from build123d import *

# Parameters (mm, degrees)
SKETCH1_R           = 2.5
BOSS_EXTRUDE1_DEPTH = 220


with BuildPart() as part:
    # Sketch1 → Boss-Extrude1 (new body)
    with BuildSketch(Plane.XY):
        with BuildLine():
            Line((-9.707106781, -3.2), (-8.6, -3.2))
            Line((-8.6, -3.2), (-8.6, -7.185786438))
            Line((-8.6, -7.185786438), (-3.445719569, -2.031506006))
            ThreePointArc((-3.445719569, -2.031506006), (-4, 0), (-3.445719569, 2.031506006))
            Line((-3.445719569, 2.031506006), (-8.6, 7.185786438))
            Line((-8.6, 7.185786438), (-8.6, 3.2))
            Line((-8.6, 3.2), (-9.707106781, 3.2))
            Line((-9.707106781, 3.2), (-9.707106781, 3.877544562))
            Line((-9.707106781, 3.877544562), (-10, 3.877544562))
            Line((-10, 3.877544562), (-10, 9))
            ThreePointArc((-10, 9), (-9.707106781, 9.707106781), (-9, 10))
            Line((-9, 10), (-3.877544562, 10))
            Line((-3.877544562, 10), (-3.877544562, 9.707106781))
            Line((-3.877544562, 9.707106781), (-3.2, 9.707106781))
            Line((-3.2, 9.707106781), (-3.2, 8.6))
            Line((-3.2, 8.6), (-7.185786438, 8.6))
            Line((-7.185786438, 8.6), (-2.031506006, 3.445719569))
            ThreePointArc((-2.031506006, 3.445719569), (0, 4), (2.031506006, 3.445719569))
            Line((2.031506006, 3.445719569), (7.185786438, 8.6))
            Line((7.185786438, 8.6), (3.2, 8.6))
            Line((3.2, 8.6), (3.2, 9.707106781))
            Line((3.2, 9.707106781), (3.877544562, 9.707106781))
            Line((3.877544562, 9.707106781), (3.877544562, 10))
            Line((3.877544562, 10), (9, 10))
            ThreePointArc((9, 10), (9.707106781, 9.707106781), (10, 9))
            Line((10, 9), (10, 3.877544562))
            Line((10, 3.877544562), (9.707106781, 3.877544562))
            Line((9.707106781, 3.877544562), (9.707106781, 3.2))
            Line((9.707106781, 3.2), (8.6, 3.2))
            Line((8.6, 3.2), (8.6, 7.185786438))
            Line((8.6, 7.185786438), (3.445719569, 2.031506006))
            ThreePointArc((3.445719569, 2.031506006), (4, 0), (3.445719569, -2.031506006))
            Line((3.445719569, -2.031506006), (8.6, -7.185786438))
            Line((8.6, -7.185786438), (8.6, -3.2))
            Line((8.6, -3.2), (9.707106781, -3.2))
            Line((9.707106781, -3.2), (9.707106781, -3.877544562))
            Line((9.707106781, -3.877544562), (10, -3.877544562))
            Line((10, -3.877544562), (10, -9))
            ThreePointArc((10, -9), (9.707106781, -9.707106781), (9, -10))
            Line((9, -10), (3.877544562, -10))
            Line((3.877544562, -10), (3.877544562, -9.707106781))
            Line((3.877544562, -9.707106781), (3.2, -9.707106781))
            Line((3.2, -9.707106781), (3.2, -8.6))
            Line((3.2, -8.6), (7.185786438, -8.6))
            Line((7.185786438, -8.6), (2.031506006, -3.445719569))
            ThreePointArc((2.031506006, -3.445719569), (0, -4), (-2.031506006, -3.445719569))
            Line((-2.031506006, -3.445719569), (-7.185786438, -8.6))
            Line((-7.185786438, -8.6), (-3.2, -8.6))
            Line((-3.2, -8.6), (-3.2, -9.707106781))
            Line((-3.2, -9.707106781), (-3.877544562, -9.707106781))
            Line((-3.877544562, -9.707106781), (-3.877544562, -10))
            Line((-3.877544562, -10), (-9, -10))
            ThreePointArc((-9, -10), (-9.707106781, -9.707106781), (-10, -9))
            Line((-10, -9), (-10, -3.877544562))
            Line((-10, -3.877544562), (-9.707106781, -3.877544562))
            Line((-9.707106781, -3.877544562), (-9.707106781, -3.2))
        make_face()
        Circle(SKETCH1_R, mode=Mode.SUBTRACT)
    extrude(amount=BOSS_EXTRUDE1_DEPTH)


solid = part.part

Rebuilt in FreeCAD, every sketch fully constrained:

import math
import FreeCAD as App
import Part
import Sketcher
Q = App.Units.Quantity

doc = App.newDocument("Part")
body = doc.addObject("PartDesign::Body", "Body")

# Sketch on XY plane
sketch1 = body.newObject("Sketcher::SketchObject", "Sketch")
sketch1.AttachmentSupport = (doc.getObject("XY_Plane"), [""])
sketch1.MapMode = "FlatFace"
sketch1.addGeometry(Part.LineSegment(App.Vector(-8.6, -3.2, 0), App.Vector(-9.707107, -3.2, 0)), False)
sketch1.addGeometry(Part.LineSegment(App.Vector(-9.707107, -3.2, 0), App.Vector(-9.707107, -3.877545, 0)), False)
sketch1.addGeometry(Part.LineSegment(App.Vector(-9.707107, -3.877545, 0), App.Vector(-10, -3.877545, 0)), False)
sketch1.addGeometry(Part.LineSegment(App.Vector(-10, -3.877545, 0), App.Vector(-10, -9, 0)), False)
sketch1.addGeometry(Part.ArcOfCircle(Part.Circle(App.Vector(-9, -9, 0), App.Vector(0, 0, 1), 1), math.radians(-180), math.radians(-90)), False)
sketch1.addGeometry(Part.LineSegment(App.Vector(-9, -10, 0), App.Vector(-3.877545, -10, 0)), False)
sketch1.addGeometry(Part.LineSegment(App.Vector(-3.877545, -10, 0), App.Vector(-3.877545, -9.707107, 0)), False)
sketch1.addGeometry(Part.LineSegment(App.Vector(-3.877545, -9.707107, 0), App.Vector(-3.2, -9.707107, 0)), False)
sketch1.addGeometry(Part.LineSegment(App.Vector(-3.2, -9.707107, 0), App.Vector(-3.2, -8.6, 0)), False)
sketch1.addGeometry(Part.LineSegment(App.Vector(-3.2, -8.6, 0), App.Vector(-7.185786, -8.6, 0)), False)
sketch1.addGeometry(Part.LineSegment(App.Vector(-7.185786, -8.6, 0), App.Vector(-2.031506, -3.44572, 0)), False)
sketch1.addGeometry(Part.ArcOfCircle(Part.Circle(App.Vector(0, 0, 0), App.Vector(0, 0, 1), 4), math.radians(-120.522488), math.radians(-59.477512)), False)
sketch1.addGeometry(Part.LineSegment(App.Vector(2.031506, -3.44572, 0), App.Vector(7.185786, -8.6, 0)), False)
sketch1.addGeometry(Part.LineSegment(App.Vector(7.185786, -8.6, 0), App.Vector(3.2, -8.6, 0)), False)
sketch1.addGeometry(Part.LineSegment(App.Vector(3.2, -8.6, 0), App.Vector(3.2, -9.707107, 0)), False)
sketch1.addGeometry(Part.LineSegment(App.Vector(3.2, -9.707107, 0), App.Vector(3.877545, -9.707107, 0)), False)
sketch1.addGeometry(Part.LineSegment(App.Vector(3.877545, -9.707107, 0), App.Vector(3.877545, -10, 0)), False)
sketch1.addGeometry(Part.LineSegment(App.Vector(3.877545, -10, 0), App.Vector(9, -10, 0)), False)
sketch1.addGeometry(Part.ArcOfCircle(Part.Circle(App.Vector(9, -9, 0), App.Vector(0, 0, 1), 1), math.radians(-90), math.radians(0)), False)
sketch1.addGeometry(Part.LineSegment(App.Vector(10, -9, 0), App.Vector(10, -3.877545, 0)), False)
sketch1.addGeometry(Part.LineSegment(App.Vector(10, -3.877545, 0), App.Vector(9.707107, -3.877545, 0)), False)
sketch1.addGeometry(Part.LineSegment(App.Vector(9.707107, -3.877545, 0), App.Vector(9.707107, -3.2, 0)), False)
sketch1.addGeometry(Part.LineSegment(App.Vector(9.707107, -3.2, 0), App.Vector(8.6, -3.2, 0)), False)
sketch1.addGeometry(Part.LineSegment(App.Vector(8.6, -3.2, 0), App.Vector(8.6, -7.185786, 0)), False)
sketch1.addGeometry(Part.LineSegment(App.Vector(8.6, -7.185786, 0), App.Vector(3.44572, -2.031506, 0)), False)
sketch1.addGeometry(Part.ArcOfCircle(Part.Circle(App.Vector(0, 0, 0), App.Vector(0, 0, 1), 4), math.radians(-30.522488), math.radians(30.522488)), False)
sketch1.addGeometry(Part.LineSegment(App.Vector(3.44572, 2.031506, 0), App.Vector(8.6, 7.185786, 0)), False)
sketch1.addGeometry(Part.LineSegment(App.Vector(8.6, 7.185786, 0), App.Vector(8.6, 3.2, 0)), False)
sketch1.addGeometry(Part.LineSegment(App.Vector(8.6, 3.2, 0), App.Vector(9.707107, 3.2, 0)), False)
sketch1.addGeometry(Part.LineSegment(App.Vector(9.707107, 3.2, 0), App.Vector(9.707107, 3.877545, 0)), False)
sketch1.addGeometry(Part.LineSegment(App.Vector(9.707107, 3.877545, 0), App.Vector(10, 3.877545, 0)), False)
sketch1.addGeometry(Part.LineSegment(App.Vector(10, 3.877545, 0), App.Vector(10, 9, 0)), False)
sketch1.addGeometry(Part.ArcOfCircle(Part.Circle(App.Vector(9, 9, 0), App.Vector(0, 0, 1), 1), math.radians(0), math.radians(90)), False)
sketch1.addGeometry(Part.LineSegment(App.Vector(9, 10, 0), App.Vector(3.877545, 10, 0)), False)
sketch1.addGeometry(Part.LineSegment(App.Vector(3.877545, 10, 0), App.Vector(3.877545, 9.707107, 0)), False)
sketch1.addGeometry(Part.LineSegment(App.Vector(3.877545, 9.707107, 0), App.Vector(3.2, 9.707107, 0)), False)
sketch1.addGeometry(Part.LineSegment(App.Vector(3.2, 9.707107, 0), App.Vector(3.2, 8.6, 0)), False)
sketch1.addGeometry(Part.LineSegment(App.Vector(3.2, 8.6, 0), App.Vector(7.185786, 8.6, 0)), False)
sketch1.addGeometry(Part.LineSegment(App.Vector(7.185786, 8.6, 0), App.Vector(2.031506, 3.44572, 0)), False)
sketch1.addGeometry(Part.ArcOfCircle(Part.Circle(App.Vector(0, 0, 0), App.Vector(0, 0, 1), 4), math.radians(59.477512), math.radians(120.522488)), False)
sketch1.addGeometry(Part.LineSegment(App.Vector(-2.031506, 3.44572, 0), App.Vector(-7.185786, 8.6, 0)), False)
sketch1.addGeometry(Part.LineSegment(App.Vector(-7.185786, 8.6, 0), App.Vector(-3.2, 8.6, 0)), False)
sketch1.addGeometry(Part.LineSegment(App.Vector(-3.2, 8.6, 0), App.Vector(-3.2, 9.707107, 0)), False)
sketch1.addGeometry(Part.LineSegment(App.Vector(-3.2, 9.707107, 0), App.Vector(-3.877545, 9.707107, 0)), False)
sketch1.addGeometry(Part.LineSegment(App.Vector(-3.877545, 9.707107, 0), App.Vector(-3.877545, 10, 0)), False)
sketch1.addGeometry(Part.LineSegment(App.Vector(-3.877545, 10, 0), App.Vector(-9, 10, 0)), False)
sketch1.addGeometry(Part.ArcOfCircle(Part.Circle(App.Vector(-9, 9, 0), App.Vector(0, 0, 1), 1), math.radians(90), math.radians(180)), False)
sketch1.addGeometry(Part.LineSegment(App.Vector(-10, 9, 0), App.Vector(-10, 3.877545, 0)), False)
sketch1.addGeometry(Part.LineSegment(App.Vector(-10, 3.877545, 0), App.Vector(-9.707107, 3.877545, 0)), False)
sketch1.addGeometry(Part.LineSegment(App.Vector(-9.707107, 3.877545, 0), App.Vector(-9.707107, 3.2, 0)), False)
sketch1.addGeometry(Part.LineSegment(App.Vector(-9.707107, 3.2, 0), App.Vector(-8.6, 3.2, 0)), False)
sketch1.addGeometry(Part.LineSegment(App.Vector(-8.6, 3.2, 0), App.Vector(-8.6, 7.185786, 0)), False)
sketch1.addGeometry(Part.LineSegment(App.Vector(-8.6, 7.185786, 0), App.Vector(-3.44572, 2.031506, 0)), False)
sketch1.addGeometry(Part.ArcOfCircle(Part.Circle(App.Vector(0, 0, 0), App.Vector(0, 0, 1), 4), math.radians(149.477512), math.radians(210.522488)), False)
sketch1.addGeometry(Part.LineSegment(App.Vector(-3.44572, -2.031506, 0), App.Vector(-8.6, -7.185786, 0)), False)
sketch1.addGeometry(Part.LineSegment(App.Vector(-8.6, -7.185786, 0), App.Vector(-8.6, -3.2, 0)), False)
sketch1.addGeometry(Part.Circle(App.Vector(0, 0, 0), App.Vector(0, 0, 1), 2.5), False)
sketch1.addConstraint(Sketcher.Constraint("Coincident", 0, 2, 1, 1))
sketch1.addConstraint(Sketcher.Constraint("Coincident", 1, 2, 2, 1))
sketch1.addConstraint(Sketcher.Constraint("Coincident", 2, 2, 3, 1))
sketch1.addConstraint(Sketcher.Constraint("Tangent", 3, 2, 4, 1))
sketch1.addConstraint(Sketcher.Constraint("Tangent", 4, 2, 5, 1))
sketch1.addConstraint(Sketcher.Constraint("Coincident", 5, 2, 6, 1))
sketch1.addConstraint(Sketcher.Constraint("Coincident", 6, 2, 7, 1))
sketch1.addConstraint(Sketcher.Constraint("Coincident", 7, 2, 8, 1))
sketch1.addConstraint(Sketcher.Constraint("Coincident", 8, 2, 9, 1))
sketch1.addConstraint(Sketcher.Constraint("Coincident", 9, 2, 10, 1))
sketch1.addConstraint(Sketcher.Constraint("Coincident", 10, 2, 11, 1))
sketch1.addConstraint(Sketcher.Constraint("Coincident", 11, 2, 12, 1))
sketch1.addConstraint(Sketcher.Constraint("Coincident", 12, 2, 13, 1))
sketch1.addConstraint(Sketcher.Constraint("Coincident", 13, 2, 14, 1))
sketch1.addConstraint(Sketcher.Constraint("Coincident", 14, 2, 15, 1))
sketch1.addConstraint(Sketcher.Constraint("Coincident", 15, 2, 16, 1))
sketch1.addConstraint(Sketcher.Constraint("Coincident", 16, 2, 17, 1))
sketch1.addConstraint(Sketcher.Constraint("Tangent", 17, 2, 18, 1))
sketch1.addConstraint(Sketcher.Constraint("Tangent", 18, 2, 19, 1))
sketch1.addConstraint(Sketcher.Constraint("Coincident", 19, 2, 20, 1))
sketch1.addConstraint(Sketcher.Constraint("Coincident", 20, 2, 21, 1))
sketch1.addConstraint(Sketcher.Constraint("Coincident", 21, 2, 22, 1))
sketch1.addConstraint(Sketcher.Constraint("Coincident", 22, 2, 23, 1))
sketch1.addConstraint(Sketcher.Constraint("Coincident", 23, 2, 24, 1))
sketch1.addConstraint(Sketcher.Constraint("Coincident", 24, 2, 25, 1))
sketch1.addConstraint(Sketcher.Constraint("Coincident", 25, 2, 26, 1))
sketch1.addConstraint(Sketcher.Constraint("Coincident", 26, 2, 27, 1))
sketch1.addConstraint(Sketcher.Constraint("Coincident", 27, 2, 28, 1))
sketch1.addConstraint(Sketcher.Constraint("Coincident", 28, 2, 29, 1))
sketch1.addConstraint(Sketcher.Constraint("Coincident", 29, 2, 30, 1))
sketch1.addConstraint(Sketcher.Constraint("Coincident", 30, 2, 31, 1))
sketch1.addConstraint(Sketcher.Constraint("Tangent", 31, 2, 32, 1))
sketch1.addConstraint(Sketcher.Constraint("Tangent", 32, 2, 33, 1))
sketch1.addConstraint(Sketcher.Constraint("Coincident", 33, 2, 34, 1))
sketch1.addConstraint(Sketcher.Constraint("Coincident", 34, 2, 35, 1))
sketch1.addConstraint(Sketcher.Constraint("Coincident", 35, 2, 36, 1))
sketch1.addConstraint(Sketcher.Constraint("Coincident", 36, 2, 37, 1))
sketch1.addConstraint(Sketcher.Constraint("Coincident", 37, 2, 38, 1))
sketch1.addConstraint(Sketcher.Constraint("Coincident", 38, 2, 39, 1))
sketch1.addConstraint(Sketcher.Constraint("Coincident", 39, 2, 40, 1))
sketch1.addConstraint(Sketcher.Constraint("Coincident", 40, 2, 41, 1))
sketch1.addConstraint(Sketcher.Constraint("Coincident", 41, 2, 42, 1))
sketch1.addConstraint(Sketcher.Constraint("Coincident", 42, 2, 43, 1))
sketch1.addConstraint(Sketcher.Constraint("Coincident", 43, 2, 44, 1))
sketch1.addConstraint(Sketcher.Constraint("Coincident", 44, 2, 45, 1))
sketch1.addConstraint(Sketcher.Constraint("Tangent", 45, 2, 46, 1))
sketch1.addConstraint(Sketcher.Constraint("Tangent", 46, 2, 47, 1))
sketch1.addConstraint(Sketcher.Constraint("Coincident", 47, 2, 48, 1))
sketch1.addConstraint(Sketcher.Constraint("Coincident", 48, 2, 49, 1))
sketch1.addConstraint(Sketcher.Constraint("Coincident", 49, 2, 50, 1))
sketch1.addConstraint(Sketcher.Constraint("Coincident", 50, 2, 51, 1))
sketch1.addConstraint(Sketcher.Constraint("Coincident", 51, 2, 52, 1))
sketch1.addConstraint(Sketcher.Constraint("Coincident", 52, 2, 53, 1))
sketch1.addConstraint(Sketcher.Constraint("Coincident", 53, 2, 54, 1))
sketch1.addConstraint(Sketcher.Constraint("Coincident", 54, 2, 55, 1))
sketch1.addConstraint(Sketcher.Constraint("Coincident", 55, 2, 0, 1))
sketch1.addConstraint(Sketcher.Constraint("Horizontal", 0))
sketch1.addConstraint(Sketcher.Constraint("Vertical", 1))
sketch1.addConstraint(Sketcher.Constraint("Horizontal", 2))
sketch1.addConstraint(Sketcher.Constraint("Vertical", 3))
sketch1.addConstraint(Sketcher.Constraint("Horizontal", 5))
sketch1.addConstraint(Sketcher.Constraint("Vertical", 6))
sketch1.addConstraint(Sketcher.Constraint("Horizontal", 7))
sketch1.addConstraint(Sketcher.Constraint("Vertical", 8))
sketch1.addConstraint(Sketcher.Constraint("Horizontal", 9))
sketch1.addConstraint(Sketcher.Constraint("Horizontal", 13))
sketch1.addConstraint(Sketcher.Constraint("Vertical", 14))
sketch1.addConstraint(Sketcher.Constraint("Horizontal", 15))
sketch1.addConstraint(Sketcher.Constraint("Vertical", 16))
sketch1.addConstraint(Sketcher.Constraint("Horizontal", 17))
sketch1.addConstraint(Sketcher.Constraint("Vertical", 19))
sketch1.addConstraint(Sketcher.Constraint("Horizontal", 20))
sketch1.addConstraint(Sketcher.Constraint("Vertical", 21))
sketch1.addConstraint(Sketcher.Constraint("Horizontal", 22))
sketch1.addConstraint(Sketcher.Constraint("Vertical", 23))
sketch1.addConstraint(Sketcher.Constraint("Vertical", 27))
sketch1.addConstraint(Sketcher.Constraint("Horizontal", 28))
sketch1.addConstraint(Sketcher.Constraint("Vertical", 29))
sketch1.addConstraint(Sketcher.Constraint("Horizontal", 30))
sketch1.addConstraint(Sketcher.Constraint("Vertical", 31))
sketch1.addConstraint(Sketcher.Constraint("Horizontal", 33))
sketch1.addConstraint(Sketcher.Constraint("Vertical", 34))
sketch1.addConstraint(Sketcher.Constraint("Horizontal", 35))
sketch1.addConstraint(Sketcher.Constraint("Vertical", 36))
sketch1.addConstraint(Sketcher.Constraint("Horizontal", 37))
sketch1.addConstraint(Sketcher.Constraint("Horizontal", 41))
sketch1.addConstraint(Sketcher.Constraint("Vertical", 42))
sketch1.addConstraint(Sketcher.Constraint("Horizontal", 43))
sketch1.addConstraint(Sketcher.Constraint("Vertical", 44))
sketch1.addConstraint(Sketcher.Constraint("Horizontal", 45))
sketch1.addConstraint(Sketcher.Constraint("Vertical", 47))
sketch1.addConstraint(Sketcher.Constraint("Horizontal", 48))
sketch1.addConstraint(Sketcher.Constraint("Vertical", 49))
sketch1.addConstraint(Sketcher.Constraint("Horizontal", 50))
sketch1.addConstraint(Sketcher.Constraint("Vertical", 51))
sketch1.addConstraint(Sketcher.Constraint("Vertical", 55))
sketch1.addConstraint(Sketcher.Constraint("Coincident", 11, 3, -1, 1))
sketch1.addConstraint(Sketcher.Constraint("Coincident", 25, 3, -1, 1))
sketch1.addConstraint(Sketcher.Constraint("Coincident", 39, 3, -1, 1))
sketch1.addConstraint(Sketcher.Constraint("Coincident", 53, 3, -1, 1))
sketch1.addConstraint(Sketcher.Constraint("Coincident", 56, 3, -1, 1))
sketch1.addConstraint(Sketcher.Constraint("Equal", 4, 18))
sketch1.addConstraint(Sketcher.Constraint("Equal", 11, 25))
sketch1.addConstraint(Sketcher.Constraint("Equal", 18, 32))
sketch1.addConstraint(Sketcher.Constraint("Equal", 25, 39))
sketch1.addConstraint(Sketcher.Constraint("Equal", 32, 46))
sketch1.addConstraint(Sketcher.Constraint("Equal", 39, 53))
sketch1.addConstraint(Sketcher.Constraint("Symmetric", 4, 3, 32, 3, -1, 1))
sketch1.addConstraint(Sketcher.Constraint("Symmetric", 18, 3, 46, 3, -1, 1))
sketch1.addConstraint(Sketcher.Constraint("Symmetric", 0, 2, 28, 2, -1, 1))
sketch1.addConstraint(Sketcher.Constraint("Symmetric", 6, 2, 34, 2, -1, 1))
sketch1.addConstraint(Sketcher.Constraint("Symmetric", 8, 2, 36, 2, -1, 1))
sketch1.addConstraint(Sketcher.Constraint("Symmetric", 12, 2, 40, 2, -1, 1))
sketch1.addConstraint(Sketcher.Constraint("Symmetric", 14, 2, 42, 2, -1, 1))
sketch1.addConstraint(Sketcher.Constraint("Symmetric", 20, 2, 48, 2, -1, 1))
sketch1.addConstraint(Sketcher.Constraint("Symmetric", 22, 2, 50, 2, -1, 1))
sketch1.addConstraint(Sketcher.Constraint("Symmetric", 26, 2, 54, 2, -1, 1))
sketch1.addConstraint(Sketcher.Constraint("Symmetric", 4, 3, 18, 3, -2))
sketch1.addConstraint(Sketcher.Constraint("Symmetric", 9, 2, 12, 2, -2))
sketch1.addConstraint(Sketcher.Constraint("Symmetric", 7, 2, 14, 2, -2))
sketch1.addConstraint(Sketcher.Constraint("Symmetric", 1, 2, 20, 2, -2))
sketch1.addConstraint(Sketcher.Constraint("Symmetric", 27, 2, 50, 2, -2))
sketch1.addConstraint(Sketcher.Constraint("Perpendicular", 10, 12))
sketch1.addConstraint(Sketcher.Constraint("Parallel", 12, 24))
sketch1.addConstraint(Sketcher.Constraint("Perpendicular", 24, 26))
sketch1.addConstraint(Sketcher.Constraint("Parallel", 26, 38))
sketch1.addConstraint(Sketcher.Constraint("Perpendicular", 38, 40))
sketch1.addConstraint(Sketcher.Constraint("Parallel", 40, 52))
sketch1.addConstraint(Sketcher.Constraint("Perpendicular", 52, 54))
sketch1.addConstraint(Sketcher.Constraint("Horizontal", 10, 2, 11, 2))
sketch1.addConstraint(Sketcher.Constraint("Horizontal", 38, 2, 39, 2))
sketch1.addConstraint(Sketcher.Constraint("Horizontal", 30, 2, 47, 2))
sketch1.addConstraint(Sketcher.Constraint("Horizontal", 26, 2, 51, 2))
sketch1.addConstraint(Sketcher.Constraint("Horizontal", 24, 2, 53, 2))
sketch1.addConstraint(Sketcher.Constraint("Vertical", 16, 2, 33, 2))
sketch1.addConstraint(Sketcher.Constraint("Vertical", 6, 2, 43, 2))
sketch1.addConstraint(Sketcher.Constraint("Equal", 43, 1))
sketch1.addConstraint(Sketcher.Constraint("Equal", 45, 3))
sketch1.addConstraint(Sketcher.Constraint("Equal", 48, 6))
sketch1.addConstraint(Sketcher.Constraint("Equal", 50, 8))
sketch1.addConstraint(Sketcher.Constraint("Equal", 41, 23))
sketch1.addConstraint(Sketcher.Constraint("Equal", 12, 24))
sketch1.addConstraint(Sketcher.Constraint("Diameter", 56, Q("5 mm")))
sketch1.addConstraint(Sketcher.Constraint("Radius", 4, Q("1 mm")))
sketch1.addConstraint(Sketcher.Constraint("Radius", 11, Q("4 mm")))
sketch1.addConstraint(Sketcher.Constraint("DistanceX", 4, 3, -1, 1, Q("9 mm")))
sketch1.addConstraint(Sketcher.Constraint("DistanceY", 0, 2, -1, 1, Q("3.2 mm")))
sketch1.addConstraint(Sketcher.Constraint("DistanceY", 8, 2, -1, 1, Q("8.6 mm")))
sketch1.addConstraint(Sketcher.Constraint("DistanceX", 0, 2, 0, 1, Q("1.107107 mm")))
sketch1.addConstraint(Sketcher.Constraint("DistanceX", 5, 1, 5, 2, Q("5.122455 mm")))
sketch1.addConstraint(Sketcher.Constraint("DistanceX", 9, 2, 9, 1, Q("3.985786 mm")))
pad1 = body.newObject("PartDesign::Pad", "Pad")
pad1.Profile = sketch1
pad1.Length = 220

doc.recompute()
